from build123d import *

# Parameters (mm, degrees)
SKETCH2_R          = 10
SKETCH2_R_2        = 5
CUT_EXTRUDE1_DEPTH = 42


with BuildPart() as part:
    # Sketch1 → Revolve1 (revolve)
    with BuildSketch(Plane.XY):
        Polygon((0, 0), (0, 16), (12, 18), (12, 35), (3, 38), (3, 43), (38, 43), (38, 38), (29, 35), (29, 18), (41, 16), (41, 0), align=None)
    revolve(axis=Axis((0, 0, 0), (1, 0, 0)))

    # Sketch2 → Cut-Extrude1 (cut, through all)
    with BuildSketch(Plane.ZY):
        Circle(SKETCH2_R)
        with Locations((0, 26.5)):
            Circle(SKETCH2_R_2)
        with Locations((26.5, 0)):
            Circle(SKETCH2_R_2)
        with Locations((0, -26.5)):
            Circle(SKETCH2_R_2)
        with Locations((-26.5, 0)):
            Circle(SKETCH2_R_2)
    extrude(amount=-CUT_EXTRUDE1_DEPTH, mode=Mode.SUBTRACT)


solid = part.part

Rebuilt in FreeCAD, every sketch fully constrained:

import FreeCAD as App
import Part
import Sketcher

V = App.Vector


def add_polygon(sketch, points):
    """Adds a closed chain of lines whose ends are joined by coincident constraints."""
    first, n = sketch.GeometryCount, len(points)
    for a, b in zip(points, points[1:] + points[:1]):
        sketch.addGeometry(Part.LineSegment(App.Vector(*a, 0), App.Vector(*b, 0)), False)
    for i in range(n):
        sketch.addConstraint(Sketcher.Constraint("Coincident", first + i, 2, first + (i + 1) % n, 1))

doc = App.newDocument("Part")
params = doc.addObject("Spreadsheet::Sheet", "Params")
for row, (alias, value) in enumerate([
    ("sketch1_width", "41 mm"),
    ("sketch1_width2", "35 mm"),
    ("sketch1_height", "16 mm"),
    ("sketch1_height2", "17 mm"),
    ("sketch1_height3", "5 mm"),
    ("revolution_angle", "360 deg"),
    ("sketch2_diameter", "20 mm"),
    ("sketch2_diameter2", "10 mm"),
], start=1):
    params.set(f"A{row}", alias)
    params.set(f"B{row}", "=" + value)
    params.setAlias(f"B{row}", alias)

body = doc.addObject("PartDesign::Body", "Body")

sketch1 = body.newObject("Sketcher::SketchObject", "Sketch")
sketch1.AttachmentSupport = (doc.getObject("XY_Plane"), [""])
sketch1.MapMode = "FlatFace"
add_polygon(sketch1, [(0, 16), (0, 0), (41, 0), (41, 16), (29, 18), (29, 35), (38, 38), (38, 43), (3, 43), (3, 38), (12, 35), (12, 18)])
sketch1.addConstraint([
    Sketcher.Constraint("Vertical", 0),
    Sketcher.Constraint("Horizontal", 1),
    Sketcher.Constraint("Vertical", 2),
    Sketcher.Constraint("Vertical", 4),
    Sketcher.Constraint("Vertical", 6),
    Sketcher.Constraint("Horizontal", 7),
    Sketcher.Constraint("Vertical", 8),
    Sketcher.Constraint("Vertical", 10),
    Sketcher.Constraint("Coincident", 0, 2, -1, 1),
    Sketcher.Constraint("Horizontal", 5, 2, 8, 2),
    Sketcher.Constraint("Horizontal", 4, 2, 9, 2),
    Sketcher.Constraint("Horizontal", 3, 2, 10, 2),
    Sketcher.Constraint("Horizontal", 2, 2, 11, 2),
    Sketcher.Constraint("Equal", 5, 9),
    Sketcher.Constraint("Equal", 3, 11),
    Sketcher.Constraint("DistanceX", 1, 1, 1, 2, 41.0),
    Sketcher.Constraint("DistanceX", 7, 2, 7, 1, 35.0),
    Sketcher.Constraint("DistanceY", 0, 2, 0, 1, 16.0),
    Sketcher.Constraint("DistanceY", 4, 1, 4, 2, 17.0),
    Sketcher.Constraint("DistanceY", 6, 1, 6, 2, 5.0),
    Sketcher.Constraint("DistanceX", -1, 1, 3, 2, 29.0),
    Sketcher.Constraint("DistanceY", -1, 1, 3, 2, 18.0),
    Sketcher.Constraint("DistanceY", -1, 1, 5, 2, 38.0),
])
sketch1.setExpression("Constraints[27]", "Params.sketch1_width")
sketch1.setExpression("Constraints[28]", "Params.sketch1_width2")
sketch1.setExpression("Constraints[29]", "Params.sketch1_height")
sketch1.setExpression("Constraints[30]", "Params.sketch1_height2")
sketch1.setExpression("Constraints[31]", "Params.sketch1_height3")
revolution = body.newObject("PartDesign::Revolution", "Revolution")
revolution.Profile = sketch1
revolution.ReferenceAxis = (sketch1, ["H_Axis"])
revolution.setExpression("Angle", "Params.revolution_angle")

sketch2 = body.newObject("Sketcher::SketchObject", "Sketch001")
sketch2.AttachmentSupport = (doc.getObject("YZ_Plane"), [""])
sketch2.MapMode = "FlatFace"
sketch2.addGeometry([
    Part.Circle(V(0, 0, 0), V(0, 0, 1), 10),
    Part.Circle(V(26, 0, 0), V(0, 0, 1), 5),
    Part.Circle(V(0, 26, 0), V(0, 0, 1), 5),
    Part.Circle(V(-26, 0, 0), V(0, 0, 1), 5),
    Part.Circle(V(0, -26, 0), V(0, 0, 1), 5),
], False)
sketch2.addConstraint([
    Sketcher.Constraint("Coincident", 0, 3, -1, 1),
    Sketcher.Constraint("Equal", 1, 2),
    Sketcher.Constraint("Equal", 2, 3),
    Sketcher.Constraint("Equal", 3, 4),
    Sketcher.Constraint("Symmetric", 1, 3, 3, 3, -1, 1),
    Sketcher.Constraint("Symmetric", 2, 3, 4, 3, -1, 1),
    Sketcher.Constraint("PointOnObject", 1, 3, -1),
    Sketcher.Constraint("PointOnObject", 2, 3, -2),
    Sketcher.Constraint("Diameter", 0, 20.0),
    Sketcher.Constraint("Diameter", 1, 10.0),
    Sketcher.Constraint("DistanceX", 3, 3, 1, 3, 53.0),
    Sketcher.Constraint("DistanceY", 4, 3, 2, 3, 53.0),
])
sketch2.setExpression("Constraints[8]", "Params.sketch2_diameter")
sketch2.setExpression("Constraints[9]", "Params.sketch2_diameter2")
pocket1 = body.newObject("PartDesign::Pocket", "Pocket")
pocket1.Profile = sketch2
pocket1.Type = "ThroughAll"
pocket1.Reversed = True

doc.recompute()
